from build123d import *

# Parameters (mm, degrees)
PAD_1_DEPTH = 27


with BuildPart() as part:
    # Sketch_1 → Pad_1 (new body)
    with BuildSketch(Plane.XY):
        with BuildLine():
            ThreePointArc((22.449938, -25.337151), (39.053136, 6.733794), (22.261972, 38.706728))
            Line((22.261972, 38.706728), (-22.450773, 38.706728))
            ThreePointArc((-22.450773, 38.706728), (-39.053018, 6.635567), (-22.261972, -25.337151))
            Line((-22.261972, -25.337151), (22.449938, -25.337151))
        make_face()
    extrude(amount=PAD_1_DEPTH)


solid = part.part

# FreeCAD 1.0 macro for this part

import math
import FreeCAD as App
import Part
import Sketcher

doc = App.newDocument("Part")
body = doc.addObject("PartDesign::Body", "Body")

# Sketch on XY plane
sketch1 = doc.addObject("Sketcher::SketchObject", "Sketch")
body.addObject(sketch1)
sketch1.AttachmentSupport = (doc.XY_Plane, [""])
sketch1.MapMode = "FlatFace"
sketch1.addGeometry(Part.ArcOfCircle(Part.Circle(App.Vector(-0.001375, 6.619171, 0), App.Vector(0, 0, 1), 39.054679), math.radians(-54.909562), math.radians(55.245882)), False)
sketch1.addGeometry(Part.LineSegment(App.Vector(22.261972, 38.706728, 0), App.Vector(-22.450773, 38.706728, 0)), False)
sketch1.addGeometry(Part.ArcOfCircle(Part.Circle(App.Vector(0.00221, 6.750701, 0), App.Vector(0, 0, 1), 39.055397), math.radians(125.092692), math.radians(235.245123)), False)
sketch1.addGeometry(Part.LineSegment(App.Vector(-22.261972, -25.337151, 0), App.Vector(22.449938, -25.337151, 0)), False)
sketch1.addConstraint(Sketcher.Constraint("Coincident", 0, 2, 1, 1))
sketch1.addConstraint(Sketcher.Constraint("Coincident", 1, 2, 2, 1))
sketch1.addConstraint(Sketcher.Constraint("Coincident", 2, 2, 3, 1))
sketch1.addConstraint(Sketcher.Constraint("Coincident", 3, 2, 0, 1))
sketch1.addConstraint(Sketcher.Constraint("Horizontal", 1))
sketch1.addConstraint(Sketcher.Constraint("Horizontal", 3))
sketch1.addConstraint(Sketcher.Constraint("Radius", 0, 39.054679))
sketch1.addConstraint(Sketcher.Constraint("Radius", 2, 39.055397))
sketch1.addConstraint(Sketcher.Constraint("DistanceX", 3, 1, 3, 2, 44.71191))
sketch1.addConstraint(Sketcher.Constraint("DistanceY", -1, 1, 2, 3, 6.750701))
sketch1.addConstraint(Sketcher.Constraint("DistanceX", 1, 2, 0, 3, 22.449398))
sketch1.addConstraint(Sketcher.Constraint("DistanceX", 1, 2, 2, 2, 0.188801))
sketch1.addConstraint(Sketcher.Constraint("DistanceX", 1, 2, 1, 1, 44.712745))
sketch1.addConstraint(Sketcher.Constraint("DistanceX", -1, 1, 2, 3, 0.00221))
pad1 = doc.addObject("PartDesign::Pad", "Pad")
body.addObject(pad1)
pad1.Profile = sketch1
pad1.Length = 27

doc.recompute()
